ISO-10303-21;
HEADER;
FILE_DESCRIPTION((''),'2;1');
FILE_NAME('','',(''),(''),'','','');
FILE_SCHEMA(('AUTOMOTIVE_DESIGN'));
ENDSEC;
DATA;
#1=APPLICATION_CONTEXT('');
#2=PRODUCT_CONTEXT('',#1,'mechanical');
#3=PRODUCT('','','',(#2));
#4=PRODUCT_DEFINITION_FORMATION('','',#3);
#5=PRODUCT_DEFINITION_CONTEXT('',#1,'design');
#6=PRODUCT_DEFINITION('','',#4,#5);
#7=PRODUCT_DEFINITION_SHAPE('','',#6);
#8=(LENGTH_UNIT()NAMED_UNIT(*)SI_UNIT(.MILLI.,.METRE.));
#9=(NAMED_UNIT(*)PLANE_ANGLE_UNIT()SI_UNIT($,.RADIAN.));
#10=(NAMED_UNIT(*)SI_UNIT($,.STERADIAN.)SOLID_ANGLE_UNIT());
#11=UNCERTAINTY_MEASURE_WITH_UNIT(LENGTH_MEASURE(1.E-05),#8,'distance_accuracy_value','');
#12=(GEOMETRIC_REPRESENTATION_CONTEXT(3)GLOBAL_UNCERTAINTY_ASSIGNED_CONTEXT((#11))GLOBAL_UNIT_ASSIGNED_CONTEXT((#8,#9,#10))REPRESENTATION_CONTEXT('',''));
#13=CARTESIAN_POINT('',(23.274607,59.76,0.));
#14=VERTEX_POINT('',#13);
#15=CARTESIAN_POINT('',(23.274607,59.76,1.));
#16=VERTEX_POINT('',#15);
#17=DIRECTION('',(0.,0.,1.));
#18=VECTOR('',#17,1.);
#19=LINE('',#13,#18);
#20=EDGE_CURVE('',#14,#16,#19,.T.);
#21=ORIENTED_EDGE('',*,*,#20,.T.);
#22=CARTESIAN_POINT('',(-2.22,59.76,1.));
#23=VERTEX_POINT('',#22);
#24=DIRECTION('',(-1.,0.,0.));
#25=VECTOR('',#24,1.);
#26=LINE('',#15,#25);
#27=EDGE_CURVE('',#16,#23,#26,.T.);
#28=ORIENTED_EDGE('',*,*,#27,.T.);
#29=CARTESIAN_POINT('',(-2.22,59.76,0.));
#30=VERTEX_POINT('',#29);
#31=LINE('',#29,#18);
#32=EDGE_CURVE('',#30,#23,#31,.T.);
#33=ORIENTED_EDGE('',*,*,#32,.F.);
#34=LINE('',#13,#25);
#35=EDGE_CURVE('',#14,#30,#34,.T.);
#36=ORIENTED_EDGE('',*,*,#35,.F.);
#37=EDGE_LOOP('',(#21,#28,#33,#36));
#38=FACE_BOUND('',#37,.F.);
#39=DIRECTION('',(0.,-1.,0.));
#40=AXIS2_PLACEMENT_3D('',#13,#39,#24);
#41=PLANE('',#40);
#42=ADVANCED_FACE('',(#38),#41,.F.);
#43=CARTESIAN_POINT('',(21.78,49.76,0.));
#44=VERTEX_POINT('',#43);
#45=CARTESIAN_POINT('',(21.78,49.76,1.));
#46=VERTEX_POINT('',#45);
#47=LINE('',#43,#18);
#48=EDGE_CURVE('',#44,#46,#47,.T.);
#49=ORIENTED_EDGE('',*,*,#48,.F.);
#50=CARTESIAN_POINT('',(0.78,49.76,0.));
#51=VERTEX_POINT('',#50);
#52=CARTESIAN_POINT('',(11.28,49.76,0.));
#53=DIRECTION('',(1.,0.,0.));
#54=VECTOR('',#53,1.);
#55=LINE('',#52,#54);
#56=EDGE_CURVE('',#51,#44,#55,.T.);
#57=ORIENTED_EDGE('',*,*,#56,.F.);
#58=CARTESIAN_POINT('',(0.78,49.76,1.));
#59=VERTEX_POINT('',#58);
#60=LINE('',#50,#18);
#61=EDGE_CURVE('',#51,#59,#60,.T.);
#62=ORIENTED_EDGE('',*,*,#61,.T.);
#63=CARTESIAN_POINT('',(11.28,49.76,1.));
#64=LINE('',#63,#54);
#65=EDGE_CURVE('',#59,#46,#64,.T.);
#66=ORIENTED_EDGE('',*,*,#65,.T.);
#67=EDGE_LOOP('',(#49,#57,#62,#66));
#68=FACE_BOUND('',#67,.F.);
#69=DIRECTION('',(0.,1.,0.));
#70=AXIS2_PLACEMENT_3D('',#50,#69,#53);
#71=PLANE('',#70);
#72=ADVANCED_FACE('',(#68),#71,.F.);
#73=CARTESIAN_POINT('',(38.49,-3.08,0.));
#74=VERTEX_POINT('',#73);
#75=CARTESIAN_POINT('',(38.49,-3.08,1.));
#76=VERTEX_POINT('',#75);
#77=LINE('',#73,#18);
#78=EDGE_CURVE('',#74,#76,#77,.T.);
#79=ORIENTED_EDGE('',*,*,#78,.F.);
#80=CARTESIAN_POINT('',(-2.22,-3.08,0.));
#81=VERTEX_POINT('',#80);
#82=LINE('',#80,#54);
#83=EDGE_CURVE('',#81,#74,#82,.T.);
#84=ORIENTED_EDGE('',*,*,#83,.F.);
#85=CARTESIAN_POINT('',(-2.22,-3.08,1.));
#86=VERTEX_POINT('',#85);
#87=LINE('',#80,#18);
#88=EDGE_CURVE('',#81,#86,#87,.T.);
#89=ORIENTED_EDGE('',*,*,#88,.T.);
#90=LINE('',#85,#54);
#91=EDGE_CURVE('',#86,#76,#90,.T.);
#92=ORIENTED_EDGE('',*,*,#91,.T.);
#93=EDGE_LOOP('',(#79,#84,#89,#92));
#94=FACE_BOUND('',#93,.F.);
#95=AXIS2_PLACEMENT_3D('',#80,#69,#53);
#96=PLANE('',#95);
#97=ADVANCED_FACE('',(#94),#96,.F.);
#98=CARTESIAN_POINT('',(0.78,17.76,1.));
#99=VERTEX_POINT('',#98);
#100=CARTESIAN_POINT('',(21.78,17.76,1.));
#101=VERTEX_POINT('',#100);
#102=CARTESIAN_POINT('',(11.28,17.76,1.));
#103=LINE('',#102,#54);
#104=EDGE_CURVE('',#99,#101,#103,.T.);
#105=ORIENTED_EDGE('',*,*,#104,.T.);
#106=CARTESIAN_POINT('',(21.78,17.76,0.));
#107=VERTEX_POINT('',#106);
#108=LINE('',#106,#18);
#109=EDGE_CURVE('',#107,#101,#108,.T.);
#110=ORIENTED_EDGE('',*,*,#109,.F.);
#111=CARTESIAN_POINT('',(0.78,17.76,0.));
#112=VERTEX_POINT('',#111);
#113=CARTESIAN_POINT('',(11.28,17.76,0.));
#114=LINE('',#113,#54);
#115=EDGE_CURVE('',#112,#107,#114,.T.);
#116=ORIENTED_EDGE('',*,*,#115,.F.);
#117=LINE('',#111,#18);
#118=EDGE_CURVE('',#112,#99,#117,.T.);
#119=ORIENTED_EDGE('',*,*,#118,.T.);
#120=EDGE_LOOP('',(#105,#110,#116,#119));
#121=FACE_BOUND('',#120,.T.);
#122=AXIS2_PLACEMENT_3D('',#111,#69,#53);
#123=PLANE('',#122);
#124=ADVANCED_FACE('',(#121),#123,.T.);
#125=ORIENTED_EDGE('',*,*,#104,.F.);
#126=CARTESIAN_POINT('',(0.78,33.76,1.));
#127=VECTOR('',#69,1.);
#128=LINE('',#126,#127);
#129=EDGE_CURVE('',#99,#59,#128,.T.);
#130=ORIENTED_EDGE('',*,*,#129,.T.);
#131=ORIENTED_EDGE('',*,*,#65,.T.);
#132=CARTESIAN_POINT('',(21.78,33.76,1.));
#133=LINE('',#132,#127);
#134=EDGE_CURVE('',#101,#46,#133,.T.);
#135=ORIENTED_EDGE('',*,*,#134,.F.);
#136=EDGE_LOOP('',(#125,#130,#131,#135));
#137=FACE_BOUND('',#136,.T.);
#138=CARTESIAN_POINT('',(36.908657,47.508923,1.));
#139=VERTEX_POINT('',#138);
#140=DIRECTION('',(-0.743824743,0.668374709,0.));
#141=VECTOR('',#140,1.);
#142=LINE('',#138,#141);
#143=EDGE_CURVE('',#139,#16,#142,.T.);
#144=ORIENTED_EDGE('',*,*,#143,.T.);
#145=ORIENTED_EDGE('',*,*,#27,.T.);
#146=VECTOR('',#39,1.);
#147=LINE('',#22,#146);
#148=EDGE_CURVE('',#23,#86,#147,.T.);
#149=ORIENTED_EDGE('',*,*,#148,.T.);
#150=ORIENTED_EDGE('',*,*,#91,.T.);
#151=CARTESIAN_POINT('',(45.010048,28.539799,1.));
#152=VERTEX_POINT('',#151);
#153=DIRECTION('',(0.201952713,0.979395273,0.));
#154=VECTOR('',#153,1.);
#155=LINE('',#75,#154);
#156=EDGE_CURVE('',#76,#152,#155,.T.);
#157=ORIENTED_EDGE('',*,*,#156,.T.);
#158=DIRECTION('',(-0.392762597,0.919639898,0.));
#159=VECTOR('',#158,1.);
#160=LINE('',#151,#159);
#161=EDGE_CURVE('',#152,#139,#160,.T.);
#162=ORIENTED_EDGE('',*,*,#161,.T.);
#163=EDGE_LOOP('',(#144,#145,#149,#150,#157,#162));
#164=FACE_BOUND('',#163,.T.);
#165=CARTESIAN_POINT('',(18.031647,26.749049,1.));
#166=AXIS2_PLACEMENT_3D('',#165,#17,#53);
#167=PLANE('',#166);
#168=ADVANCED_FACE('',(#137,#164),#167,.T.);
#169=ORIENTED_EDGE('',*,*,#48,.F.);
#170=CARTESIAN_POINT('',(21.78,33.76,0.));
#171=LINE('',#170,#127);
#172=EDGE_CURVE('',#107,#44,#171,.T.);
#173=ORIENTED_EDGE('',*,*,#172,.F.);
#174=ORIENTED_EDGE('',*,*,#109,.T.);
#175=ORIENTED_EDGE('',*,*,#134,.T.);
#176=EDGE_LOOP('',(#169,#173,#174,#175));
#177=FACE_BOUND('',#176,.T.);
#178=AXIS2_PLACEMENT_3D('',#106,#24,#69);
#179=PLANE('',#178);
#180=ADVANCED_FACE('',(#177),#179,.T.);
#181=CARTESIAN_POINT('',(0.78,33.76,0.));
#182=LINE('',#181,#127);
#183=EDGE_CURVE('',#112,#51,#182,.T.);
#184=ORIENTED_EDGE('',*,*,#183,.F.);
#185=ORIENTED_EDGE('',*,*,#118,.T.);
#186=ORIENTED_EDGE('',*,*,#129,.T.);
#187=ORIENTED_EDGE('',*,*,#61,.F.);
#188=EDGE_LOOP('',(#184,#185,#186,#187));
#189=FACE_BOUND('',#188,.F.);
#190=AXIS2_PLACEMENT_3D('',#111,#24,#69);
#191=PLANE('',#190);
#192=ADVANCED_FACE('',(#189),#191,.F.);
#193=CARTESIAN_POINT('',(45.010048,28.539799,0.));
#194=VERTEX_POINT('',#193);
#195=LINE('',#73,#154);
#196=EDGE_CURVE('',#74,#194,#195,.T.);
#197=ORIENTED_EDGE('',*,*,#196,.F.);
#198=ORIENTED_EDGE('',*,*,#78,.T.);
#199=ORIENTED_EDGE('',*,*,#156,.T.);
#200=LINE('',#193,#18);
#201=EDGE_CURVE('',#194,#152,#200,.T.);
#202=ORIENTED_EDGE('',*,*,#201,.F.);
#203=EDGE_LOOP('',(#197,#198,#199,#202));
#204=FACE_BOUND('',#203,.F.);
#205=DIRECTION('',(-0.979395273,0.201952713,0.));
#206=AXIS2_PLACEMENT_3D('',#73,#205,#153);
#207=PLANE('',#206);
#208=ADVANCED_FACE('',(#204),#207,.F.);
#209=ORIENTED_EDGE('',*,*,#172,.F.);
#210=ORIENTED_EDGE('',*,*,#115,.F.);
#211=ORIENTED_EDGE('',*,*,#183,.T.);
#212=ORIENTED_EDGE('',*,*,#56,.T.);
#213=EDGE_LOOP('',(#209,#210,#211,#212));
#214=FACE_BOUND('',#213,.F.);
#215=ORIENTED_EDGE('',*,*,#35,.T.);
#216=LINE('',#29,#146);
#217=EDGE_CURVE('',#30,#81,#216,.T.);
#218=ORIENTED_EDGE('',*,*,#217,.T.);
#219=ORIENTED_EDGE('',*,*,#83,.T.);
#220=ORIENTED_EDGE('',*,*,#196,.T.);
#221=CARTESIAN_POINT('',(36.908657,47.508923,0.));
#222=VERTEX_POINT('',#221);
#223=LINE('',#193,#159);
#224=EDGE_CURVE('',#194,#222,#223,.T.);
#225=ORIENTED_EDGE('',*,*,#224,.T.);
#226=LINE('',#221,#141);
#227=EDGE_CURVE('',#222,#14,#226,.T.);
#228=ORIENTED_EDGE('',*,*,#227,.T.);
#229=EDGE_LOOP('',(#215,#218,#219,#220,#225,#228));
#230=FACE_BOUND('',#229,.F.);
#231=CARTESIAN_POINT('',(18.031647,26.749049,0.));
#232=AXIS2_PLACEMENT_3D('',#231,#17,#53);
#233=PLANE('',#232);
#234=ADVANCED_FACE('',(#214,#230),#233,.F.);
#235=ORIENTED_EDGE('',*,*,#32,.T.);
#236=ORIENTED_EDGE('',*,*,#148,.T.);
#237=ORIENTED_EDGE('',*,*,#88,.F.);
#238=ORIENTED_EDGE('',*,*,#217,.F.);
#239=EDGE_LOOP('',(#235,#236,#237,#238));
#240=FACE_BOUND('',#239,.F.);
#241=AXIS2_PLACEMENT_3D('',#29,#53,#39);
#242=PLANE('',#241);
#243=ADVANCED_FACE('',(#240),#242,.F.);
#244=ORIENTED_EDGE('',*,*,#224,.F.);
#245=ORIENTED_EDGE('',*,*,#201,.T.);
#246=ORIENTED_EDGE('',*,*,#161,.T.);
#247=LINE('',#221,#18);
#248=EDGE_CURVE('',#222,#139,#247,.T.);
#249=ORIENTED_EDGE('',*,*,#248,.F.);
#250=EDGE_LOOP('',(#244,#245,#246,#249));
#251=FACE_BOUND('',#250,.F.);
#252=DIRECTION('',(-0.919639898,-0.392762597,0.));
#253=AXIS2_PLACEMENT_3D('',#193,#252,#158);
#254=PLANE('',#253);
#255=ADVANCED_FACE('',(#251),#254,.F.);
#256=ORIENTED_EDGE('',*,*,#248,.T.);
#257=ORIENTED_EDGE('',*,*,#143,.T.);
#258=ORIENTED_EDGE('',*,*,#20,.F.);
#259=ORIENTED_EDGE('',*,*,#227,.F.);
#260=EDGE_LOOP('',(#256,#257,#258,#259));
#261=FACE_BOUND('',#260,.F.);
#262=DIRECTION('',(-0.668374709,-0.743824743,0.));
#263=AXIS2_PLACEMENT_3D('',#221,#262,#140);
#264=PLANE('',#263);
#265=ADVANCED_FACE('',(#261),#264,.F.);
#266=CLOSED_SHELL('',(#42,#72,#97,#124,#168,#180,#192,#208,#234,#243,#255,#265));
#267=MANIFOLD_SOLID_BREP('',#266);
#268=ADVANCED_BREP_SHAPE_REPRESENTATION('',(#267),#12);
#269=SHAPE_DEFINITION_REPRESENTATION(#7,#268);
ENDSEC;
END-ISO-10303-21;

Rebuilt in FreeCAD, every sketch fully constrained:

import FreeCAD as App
import Part
import Sketcher
Q = App.Units.Quantity

doc = App.newDocument("Part")
params = doc.addObject("Spreadsheet::Sheet", "Params")
for row, (alias, value) in enumerate([
    ("sketch1_width", "21 mm"),
    ("sketch1_height", "32 mm"),
    ("sketch1_width2", "40.71 mm"),
    ("sketch1_height2", "62.84 mm"),
    ("pad1_length", "1 mm"),
], start=1):
    params.set(f"A{row}", alias)
    params.set(f"B{row}", "=" + value)
    params.setAlias(f"B{row}", alias)

body = doc.addObject("PartDesign::Body", "Body")

# Sketch on XY plane
sketch1 = doc.addObject("Sketcher::SketchObject", "Sketch")
body.addObject(sketch1)
sketch1.AttachmentSupport = (doc.XY_Plane, [""])
sketch1.MapMode = "FlatFace"
sketch1.addGeometry(Part.LineSegment(App.Vector(-2, 60, 0), App.Vector(-2, -3, 0)), False)
sketch1.addGeometry(Part.LineSegment(App.Vector(-2, -3, 0), App.Vector(38, -3, 0)), False)
sketch1.addGeometry(Part.LineSegment(App.Vector(38, -3, 0), App.Vector(45, 29, 0)), False)
sketch1.addGeometry(Part.LineSegment(App.Vector(45, 29, 0), App.Vector(37, 48, 0)), False)
sketch1.addGeometry(Part.LineSegment(App.Vector(37, 48, 0), App.Vector(23, 60, 0)), False)
sketch1.addGeometry(Part.LineSegment(App.Vector(23, 60, 0), App.Vector(-2, 60, 0)), False)
sketch1.addGeometry(Part.LineSegment(App.Vector(22, 18, 0), App.Vector(1, 18, 0)), False)
sketch1.addGeometry(Part.LineSegment(App.Vector(1, 18, 0), App.Vector(1, 50, 0)), False)
sketch1.addGeometry(Part.LineSegment(App.Vector(1, 50, 0), App.Vector(22, 50, 0)), False)
sketch1.addGeometry(Part.LineSegment(App.Vector(22, 50, 0), App.Vector(22, 18, 0)), False)
sketch1.addConstraint(Sketcher.Constraint("Coincident", 0, 2, 1, 1))
sketch1.addConstraint(Sketcher.Constraint("Coincident", 1, 2, 2, 1))
sketch1.addConstraint(Sketcher.Constraint("Coincident", 2, 2, 3, 1))
sketch1.addConstraint(Sketcher.Constraint("Coincident", 3, 2, 4, 1))
sketch1.addConstraint(Sketcher.Constraint("Coincident", 4, 2, 5, 1))
sketch1.addConstraint(Sketcher.Constraint("Coincident", 5, 2, 0, 1))
sketch1.addConstraint(Sketcher.Constraint("Coincident", 6, 2, 7, 1))
sketch1.addConstraint(Sketcher.Constraint("Coincident", 7, 2, 8, 1))
sketch1.addConstraint(Sketcher.Constraint("Coincident", 8, 2, 9, 1))
sketch1.addConstraint(Sketcher.Constraint("Coincident", 9, 2, 6, 1))
sketch1.addConstraint(Sketcher.Constraint("Vertical", 0))
sketch1.addConstraint(Sketcher.Constraint("Horizontal", 1))
sketch1.addConstraint(Sketcher.Constraint("Horizontal", 5))
sketch1.addConstraint(Sketcher.Constraint("Horizontal", 6))
sketch1.addConstraint(Sketcher.Constraint("Vertical", 7))
sketch1.addConstraint(Sketcher.Constraint("Horizontal", 8))
sketch1.addConstraint(Sketcher.Constraint("Vertical", 9))
sketch1.addConstraint(Sketcher.Constraint("DistanceX", 6, 2, 6, 1, Q("21 mm")))
sketch1.addConstraint(Sketcher.Constraint("DistanceY", 7, 1, 7, 2, Q("32 mm")))
sketch1.addConstraint(Sketcher.Constraint("DistanceX", 0, 2, 6, 2, Q("3 mm")))
sketch1.addConstraint(Sketcher.Constraint("DistanceY", 6, 2, 5, 2, Q("42 mm")))
sketch1.addConstraint(Sketcher.Constraint("DistanceX", 1, 1, 1, 2, Q("40.71 mm")))
sketch1.addConstraint(Sketcher.Constraint("DistanceY", 0, 2, 0, 1, Q("62.84 mm")))
sketch1.addConstraint(Sketcher.Constraint("DistanceX", 0, 2, -1, 1, Q("2.22 mm")))
sketch1.addConstraint(Sketcher.Constraint("DistanceY", 0, 2, -1, 1, Q("3.08 mm")))
sketch1.addConstraint(Sketcher.Constraint("DistanceY", -1, 1, 2, 2, Q("28.539799 mm")))
sketch1.addConstraint(Sketcher.Constraint("DistanceX", 5, 2, 5, 1, Q("25.494607 mm")))
sketch1.addConstraint(Sketcher.Constraint("DistanceX", 3, 2, 2, 2, Q("8.101391 mm")))
sketch1.addConstraint(Sketcher.Constraint("DistanceX", 4, 2, 3, 2, Q("13.63405 mm")))
sketch1.addConstraint(Sketcher.Constraint("Distance", 3, Q("20.626687 mm")))
sketch1.setExpression("Constraints[17]", "Params.sketch1_width")
sketch1.setExpression("Constraints[18]", "Params.sketch1_height")
sketch1.setExpression("Constraints[21]", "Params.sketch1_width2")
sketch1.setExpression("Constraints[22]", "Params.sketch1_height2")
pad1 = doc.addObject("PartDesign::Pad", "Pad")
body.addObject(pad1)
pad1.Profile = sketch1
pad1.setExpression("Length", "Params.pad1_length")

doc.recompute()
